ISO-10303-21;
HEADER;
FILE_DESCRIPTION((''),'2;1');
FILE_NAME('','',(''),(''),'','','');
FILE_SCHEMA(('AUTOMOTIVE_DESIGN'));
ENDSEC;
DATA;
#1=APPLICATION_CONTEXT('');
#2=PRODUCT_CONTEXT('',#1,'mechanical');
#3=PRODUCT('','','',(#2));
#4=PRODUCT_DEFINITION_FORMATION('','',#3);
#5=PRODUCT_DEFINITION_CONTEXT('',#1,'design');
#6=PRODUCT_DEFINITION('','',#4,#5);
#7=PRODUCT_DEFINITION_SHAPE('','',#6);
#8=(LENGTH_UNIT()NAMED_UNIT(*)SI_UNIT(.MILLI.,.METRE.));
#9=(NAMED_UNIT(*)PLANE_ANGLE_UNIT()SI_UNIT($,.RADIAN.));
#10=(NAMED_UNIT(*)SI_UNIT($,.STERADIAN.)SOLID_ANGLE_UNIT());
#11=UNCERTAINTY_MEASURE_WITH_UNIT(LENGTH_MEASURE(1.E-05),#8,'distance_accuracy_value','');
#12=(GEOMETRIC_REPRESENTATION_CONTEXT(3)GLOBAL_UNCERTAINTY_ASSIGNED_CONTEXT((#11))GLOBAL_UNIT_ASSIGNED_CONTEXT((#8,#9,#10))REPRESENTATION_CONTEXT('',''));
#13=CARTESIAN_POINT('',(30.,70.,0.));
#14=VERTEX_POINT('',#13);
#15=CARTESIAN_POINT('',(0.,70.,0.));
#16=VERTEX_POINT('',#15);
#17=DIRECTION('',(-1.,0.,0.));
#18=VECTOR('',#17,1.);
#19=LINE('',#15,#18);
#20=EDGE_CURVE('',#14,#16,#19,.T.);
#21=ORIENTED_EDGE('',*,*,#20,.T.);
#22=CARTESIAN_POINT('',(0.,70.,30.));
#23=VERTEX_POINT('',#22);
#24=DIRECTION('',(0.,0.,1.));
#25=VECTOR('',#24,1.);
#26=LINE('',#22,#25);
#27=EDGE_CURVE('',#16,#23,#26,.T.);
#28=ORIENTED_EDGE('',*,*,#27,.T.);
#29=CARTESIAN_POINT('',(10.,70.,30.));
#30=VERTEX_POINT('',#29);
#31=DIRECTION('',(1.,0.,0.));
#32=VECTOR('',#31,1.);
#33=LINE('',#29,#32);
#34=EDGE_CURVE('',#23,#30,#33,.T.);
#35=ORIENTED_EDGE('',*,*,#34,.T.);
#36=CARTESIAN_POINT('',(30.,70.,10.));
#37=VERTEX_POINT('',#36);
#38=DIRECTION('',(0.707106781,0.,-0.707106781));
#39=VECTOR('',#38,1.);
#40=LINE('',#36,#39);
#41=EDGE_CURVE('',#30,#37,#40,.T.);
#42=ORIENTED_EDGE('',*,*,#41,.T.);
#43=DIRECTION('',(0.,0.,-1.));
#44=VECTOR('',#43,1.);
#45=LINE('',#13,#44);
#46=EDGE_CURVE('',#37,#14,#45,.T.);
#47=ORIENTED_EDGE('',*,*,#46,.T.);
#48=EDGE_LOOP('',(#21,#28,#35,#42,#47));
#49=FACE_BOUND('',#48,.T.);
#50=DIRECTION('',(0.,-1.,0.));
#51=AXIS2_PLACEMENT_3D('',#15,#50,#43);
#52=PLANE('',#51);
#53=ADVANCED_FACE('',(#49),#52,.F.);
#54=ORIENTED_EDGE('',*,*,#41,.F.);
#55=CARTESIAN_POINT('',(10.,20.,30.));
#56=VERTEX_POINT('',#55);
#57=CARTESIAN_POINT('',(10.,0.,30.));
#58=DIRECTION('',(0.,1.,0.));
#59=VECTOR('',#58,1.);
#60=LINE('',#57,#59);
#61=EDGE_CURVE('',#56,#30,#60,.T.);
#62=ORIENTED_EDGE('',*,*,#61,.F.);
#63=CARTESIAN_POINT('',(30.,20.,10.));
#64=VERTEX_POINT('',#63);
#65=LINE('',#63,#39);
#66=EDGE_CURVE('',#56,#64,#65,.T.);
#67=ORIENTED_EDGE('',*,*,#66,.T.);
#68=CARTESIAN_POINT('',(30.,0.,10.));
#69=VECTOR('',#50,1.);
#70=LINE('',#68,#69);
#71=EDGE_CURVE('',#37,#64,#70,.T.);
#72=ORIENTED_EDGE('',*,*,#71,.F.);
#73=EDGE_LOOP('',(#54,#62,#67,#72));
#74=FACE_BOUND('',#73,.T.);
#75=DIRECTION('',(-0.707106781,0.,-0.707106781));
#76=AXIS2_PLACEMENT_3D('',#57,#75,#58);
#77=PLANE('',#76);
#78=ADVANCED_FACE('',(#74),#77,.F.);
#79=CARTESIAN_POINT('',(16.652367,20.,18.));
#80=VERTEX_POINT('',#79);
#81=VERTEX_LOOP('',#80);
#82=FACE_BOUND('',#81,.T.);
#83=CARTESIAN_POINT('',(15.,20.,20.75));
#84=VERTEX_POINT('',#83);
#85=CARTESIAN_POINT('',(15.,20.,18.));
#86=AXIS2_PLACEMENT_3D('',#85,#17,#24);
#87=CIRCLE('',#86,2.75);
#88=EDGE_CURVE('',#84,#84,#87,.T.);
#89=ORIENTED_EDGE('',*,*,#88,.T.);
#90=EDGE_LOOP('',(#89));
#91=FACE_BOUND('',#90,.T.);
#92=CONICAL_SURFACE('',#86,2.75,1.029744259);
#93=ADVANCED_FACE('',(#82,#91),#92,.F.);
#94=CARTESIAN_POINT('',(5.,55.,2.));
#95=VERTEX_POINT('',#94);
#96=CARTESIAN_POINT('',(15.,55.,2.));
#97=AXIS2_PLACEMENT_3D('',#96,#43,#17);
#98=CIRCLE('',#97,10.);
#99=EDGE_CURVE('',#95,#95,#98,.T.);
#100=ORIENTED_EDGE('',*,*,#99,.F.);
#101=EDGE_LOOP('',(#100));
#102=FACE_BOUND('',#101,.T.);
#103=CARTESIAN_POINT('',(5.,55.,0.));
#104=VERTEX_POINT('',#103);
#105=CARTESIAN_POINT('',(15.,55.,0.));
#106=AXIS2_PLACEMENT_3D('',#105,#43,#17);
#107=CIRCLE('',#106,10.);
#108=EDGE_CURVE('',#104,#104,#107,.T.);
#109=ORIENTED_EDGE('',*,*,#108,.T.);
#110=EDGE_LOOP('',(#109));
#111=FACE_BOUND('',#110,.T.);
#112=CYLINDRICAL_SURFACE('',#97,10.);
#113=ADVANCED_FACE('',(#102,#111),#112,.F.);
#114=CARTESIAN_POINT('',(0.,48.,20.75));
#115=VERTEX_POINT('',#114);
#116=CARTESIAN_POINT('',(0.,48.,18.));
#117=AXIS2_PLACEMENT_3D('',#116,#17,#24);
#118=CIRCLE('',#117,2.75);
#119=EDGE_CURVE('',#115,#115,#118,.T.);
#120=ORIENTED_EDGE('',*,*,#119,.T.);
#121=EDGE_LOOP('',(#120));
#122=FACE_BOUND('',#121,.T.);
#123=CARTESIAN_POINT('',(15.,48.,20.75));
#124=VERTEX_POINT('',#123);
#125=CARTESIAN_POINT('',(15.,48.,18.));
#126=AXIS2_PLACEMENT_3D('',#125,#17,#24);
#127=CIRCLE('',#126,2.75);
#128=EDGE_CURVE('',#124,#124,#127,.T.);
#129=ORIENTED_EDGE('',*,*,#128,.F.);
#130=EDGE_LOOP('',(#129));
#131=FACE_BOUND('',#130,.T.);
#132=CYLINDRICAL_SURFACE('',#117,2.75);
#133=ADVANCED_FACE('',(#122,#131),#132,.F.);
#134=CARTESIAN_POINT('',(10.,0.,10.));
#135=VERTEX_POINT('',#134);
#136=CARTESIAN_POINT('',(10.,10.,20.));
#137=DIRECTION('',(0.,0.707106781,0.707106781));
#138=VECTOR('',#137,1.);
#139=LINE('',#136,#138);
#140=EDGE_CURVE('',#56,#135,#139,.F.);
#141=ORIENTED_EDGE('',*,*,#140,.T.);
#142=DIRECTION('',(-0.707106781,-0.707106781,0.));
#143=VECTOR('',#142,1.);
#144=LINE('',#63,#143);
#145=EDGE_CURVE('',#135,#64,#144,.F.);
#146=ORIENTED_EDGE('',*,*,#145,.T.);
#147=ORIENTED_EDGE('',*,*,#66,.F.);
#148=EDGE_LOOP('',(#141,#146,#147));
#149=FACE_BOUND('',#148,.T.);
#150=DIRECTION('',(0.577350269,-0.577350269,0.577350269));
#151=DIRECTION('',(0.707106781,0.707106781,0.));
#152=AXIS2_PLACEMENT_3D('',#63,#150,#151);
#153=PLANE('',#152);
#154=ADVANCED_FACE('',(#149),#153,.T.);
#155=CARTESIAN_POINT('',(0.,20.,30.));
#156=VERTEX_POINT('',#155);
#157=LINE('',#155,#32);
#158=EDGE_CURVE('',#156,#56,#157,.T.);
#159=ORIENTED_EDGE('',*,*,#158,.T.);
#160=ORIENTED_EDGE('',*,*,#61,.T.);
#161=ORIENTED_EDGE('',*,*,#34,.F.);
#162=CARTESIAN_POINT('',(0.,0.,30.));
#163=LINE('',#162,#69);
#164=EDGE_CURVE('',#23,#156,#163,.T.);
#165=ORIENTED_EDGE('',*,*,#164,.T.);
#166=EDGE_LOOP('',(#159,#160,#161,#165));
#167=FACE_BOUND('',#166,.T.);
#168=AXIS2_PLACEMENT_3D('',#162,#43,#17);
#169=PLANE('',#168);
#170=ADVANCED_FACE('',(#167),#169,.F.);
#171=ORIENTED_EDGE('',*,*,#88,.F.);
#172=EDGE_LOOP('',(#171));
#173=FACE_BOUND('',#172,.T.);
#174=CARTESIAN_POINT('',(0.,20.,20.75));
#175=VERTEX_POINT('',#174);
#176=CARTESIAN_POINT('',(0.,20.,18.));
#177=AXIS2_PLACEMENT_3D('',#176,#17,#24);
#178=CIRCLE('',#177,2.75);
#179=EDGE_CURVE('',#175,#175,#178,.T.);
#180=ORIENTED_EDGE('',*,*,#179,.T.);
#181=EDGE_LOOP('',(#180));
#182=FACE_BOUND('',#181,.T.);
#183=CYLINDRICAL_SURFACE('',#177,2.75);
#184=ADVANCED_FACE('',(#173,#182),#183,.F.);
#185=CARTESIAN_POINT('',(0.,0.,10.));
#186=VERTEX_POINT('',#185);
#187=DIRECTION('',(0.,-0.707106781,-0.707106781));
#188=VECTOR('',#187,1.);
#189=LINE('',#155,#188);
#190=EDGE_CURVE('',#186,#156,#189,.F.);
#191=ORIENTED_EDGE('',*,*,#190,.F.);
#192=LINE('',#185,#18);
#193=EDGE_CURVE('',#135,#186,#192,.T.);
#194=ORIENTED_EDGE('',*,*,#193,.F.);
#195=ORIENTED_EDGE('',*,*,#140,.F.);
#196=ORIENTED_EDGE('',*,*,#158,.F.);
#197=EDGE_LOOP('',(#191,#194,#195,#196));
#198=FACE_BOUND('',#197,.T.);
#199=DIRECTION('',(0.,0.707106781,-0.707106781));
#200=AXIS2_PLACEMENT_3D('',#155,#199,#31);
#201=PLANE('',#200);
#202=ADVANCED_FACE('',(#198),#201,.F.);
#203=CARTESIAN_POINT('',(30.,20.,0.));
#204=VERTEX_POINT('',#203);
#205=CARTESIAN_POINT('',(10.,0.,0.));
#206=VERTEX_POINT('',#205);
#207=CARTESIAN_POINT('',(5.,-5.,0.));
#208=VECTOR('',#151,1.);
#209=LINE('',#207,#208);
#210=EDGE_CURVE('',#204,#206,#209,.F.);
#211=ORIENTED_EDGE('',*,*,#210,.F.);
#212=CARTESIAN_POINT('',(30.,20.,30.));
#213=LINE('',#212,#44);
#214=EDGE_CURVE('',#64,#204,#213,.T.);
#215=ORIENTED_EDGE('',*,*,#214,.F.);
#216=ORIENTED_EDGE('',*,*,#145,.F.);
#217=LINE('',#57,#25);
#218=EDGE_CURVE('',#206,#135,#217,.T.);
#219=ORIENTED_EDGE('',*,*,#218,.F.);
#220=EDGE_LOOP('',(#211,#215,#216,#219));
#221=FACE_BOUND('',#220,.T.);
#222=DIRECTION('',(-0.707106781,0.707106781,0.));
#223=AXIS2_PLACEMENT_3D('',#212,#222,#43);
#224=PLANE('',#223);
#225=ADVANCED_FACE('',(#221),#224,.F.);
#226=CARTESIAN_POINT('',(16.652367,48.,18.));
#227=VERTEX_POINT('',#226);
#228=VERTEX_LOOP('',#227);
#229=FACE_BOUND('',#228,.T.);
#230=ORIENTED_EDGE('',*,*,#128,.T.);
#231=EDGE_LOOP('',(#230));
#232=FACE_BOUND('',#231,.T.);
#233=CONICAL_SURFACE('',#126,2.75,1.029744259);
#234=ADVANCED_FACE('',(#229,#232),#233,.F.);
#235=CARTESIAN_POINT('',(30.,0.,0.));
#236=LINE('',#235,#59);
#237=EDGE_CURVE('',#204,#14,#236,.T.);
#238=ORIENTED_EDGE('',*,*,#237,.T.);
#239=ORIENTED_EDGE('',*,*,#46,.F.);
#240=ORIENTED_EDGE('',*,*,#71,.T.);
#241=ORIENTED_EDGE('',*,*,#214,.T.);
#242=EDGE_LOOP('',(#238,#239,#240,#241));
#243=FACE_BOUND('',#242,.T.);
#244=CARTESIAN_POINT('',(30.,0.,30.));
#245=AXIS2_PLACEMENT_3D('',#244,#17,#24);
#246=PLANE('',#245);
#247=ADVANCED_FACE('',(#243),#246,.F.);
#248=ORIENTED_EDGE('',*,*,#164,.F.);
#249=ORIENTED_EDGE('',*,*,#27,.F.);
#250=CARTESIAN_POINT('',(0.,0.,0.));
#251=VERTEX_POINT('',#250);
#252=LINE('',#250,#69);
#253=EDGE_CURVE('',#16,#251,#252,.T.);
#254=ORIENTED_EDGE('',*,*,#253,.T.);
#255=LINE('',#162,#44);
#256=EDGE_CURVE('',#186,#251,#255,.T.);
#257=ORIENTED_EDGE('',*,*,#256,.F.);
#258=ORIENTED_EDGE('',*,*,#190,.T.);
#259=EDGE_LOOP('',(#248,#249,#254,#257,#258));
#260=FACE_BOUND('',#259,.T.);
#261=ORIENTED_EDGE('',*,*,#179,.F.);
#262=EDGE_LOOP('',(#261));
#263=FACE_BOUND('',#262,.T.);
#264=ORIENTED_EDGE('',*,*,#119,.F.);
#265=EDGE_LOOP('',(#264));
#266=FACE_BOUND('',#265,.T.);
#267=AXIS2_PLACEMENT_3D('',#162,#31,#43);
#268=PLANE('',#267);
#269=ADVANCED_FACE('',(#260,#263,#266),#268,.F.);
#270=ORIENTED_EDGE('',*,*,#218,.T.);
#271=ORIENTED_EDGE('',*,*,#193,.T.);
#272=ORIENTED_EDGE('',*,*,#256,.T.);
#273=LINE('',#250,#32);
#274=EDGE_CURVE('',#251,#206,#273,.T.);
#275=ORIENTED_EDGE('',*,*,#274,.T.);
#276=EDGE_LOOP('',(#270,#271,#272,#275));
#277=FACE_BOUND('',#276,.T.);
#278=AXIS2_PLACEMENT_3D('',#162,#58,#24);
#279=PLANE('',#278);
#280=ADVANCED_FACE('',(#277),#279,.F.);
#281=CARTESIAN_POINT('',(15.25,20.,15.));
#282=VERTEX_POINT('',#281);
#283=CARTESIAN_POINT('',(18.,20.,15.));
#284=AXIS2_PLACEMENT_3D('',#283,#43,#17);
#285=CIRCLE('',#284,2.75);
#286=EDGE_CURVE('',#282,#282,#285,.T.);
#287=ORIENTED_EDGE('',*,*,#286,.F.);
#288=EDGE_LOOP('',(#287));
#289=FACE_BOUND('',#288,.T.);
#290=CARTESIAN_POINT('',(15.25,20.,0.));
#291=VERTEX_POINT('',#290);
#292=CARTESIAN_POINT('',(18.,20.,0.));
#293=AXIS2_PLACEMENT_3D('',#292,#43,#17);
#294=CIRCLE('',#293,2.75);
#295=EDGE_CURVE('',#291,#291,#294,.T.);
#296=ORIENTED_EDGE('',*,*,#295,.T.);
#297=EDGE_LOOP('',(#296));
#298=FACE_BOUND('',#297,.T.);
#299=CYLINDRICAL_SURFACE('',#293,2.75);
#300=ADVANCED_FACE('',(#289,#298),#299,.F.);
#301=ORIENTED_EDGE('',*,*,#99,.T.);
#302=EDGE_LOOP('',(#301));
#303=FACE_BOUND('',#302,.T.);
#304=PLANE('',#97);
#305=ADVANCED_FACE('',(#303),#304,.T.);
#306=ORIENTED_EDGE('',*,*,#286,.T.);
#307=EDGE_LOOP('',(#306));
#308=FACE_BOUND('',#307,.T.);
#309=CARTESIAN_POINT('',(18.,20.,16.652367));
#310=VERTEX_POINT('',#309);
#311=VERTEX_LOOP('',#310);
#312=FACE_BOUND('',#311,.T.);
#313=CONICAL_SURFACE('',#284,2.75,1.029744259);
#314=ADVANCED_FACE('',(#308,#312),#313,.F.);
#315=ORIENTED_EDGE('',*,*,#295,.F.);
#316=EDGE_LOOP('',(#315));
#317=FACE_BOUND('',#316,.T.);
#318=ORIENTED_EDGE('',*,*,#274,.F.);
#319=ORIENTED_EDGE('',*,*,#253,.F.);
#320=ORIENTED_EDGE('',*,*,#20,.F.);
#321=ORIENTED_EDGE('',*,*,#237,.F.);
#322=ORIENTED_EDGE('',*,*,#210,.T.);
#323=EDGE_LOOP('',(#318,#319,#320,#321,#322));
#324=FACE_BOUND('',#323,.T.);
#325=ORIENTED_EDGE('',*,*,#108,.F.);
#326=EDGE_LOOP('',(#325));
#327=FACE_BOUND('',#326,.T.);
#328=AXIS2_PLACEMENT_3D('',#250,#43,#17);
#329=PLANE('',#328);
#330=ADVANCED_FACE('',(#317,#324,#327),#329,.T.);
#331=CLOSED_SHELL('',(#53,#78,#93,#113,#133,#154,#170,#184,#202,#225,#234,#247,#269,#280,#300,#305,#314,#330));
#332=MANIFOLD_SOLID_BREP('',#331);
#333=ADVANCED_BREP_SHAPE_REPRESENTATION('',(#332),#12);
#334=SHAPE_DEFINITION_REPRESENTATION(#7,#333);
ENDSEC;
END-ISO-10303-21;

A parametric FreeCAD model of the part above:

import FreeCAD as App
import Part
import Sketcher
Q = App.Units.Quantity


def edges_at(feature, points):
    """Names of the edges that pass closest to the given points."""
    edges = feature.Shape.Edges
    near = lambda p: min(range(len(edges)), key=lambda i: edges[i].distToShape(Part.Vertex(*p))[0])
    return sorted({f"Edge{near(p) + 1}" for p in points})


def add_polygon(sketch, points):
    """Adds a closed chain of lines whose ends are joined by coincident constraints."""
    first, n = sketch.GeometryCount, len(points)
    for a, b in zip(points, points[1:] + points[:1]):
        sketch.addGeometry(Part.LineSegment(App.Vector(*a, 0), App.Vector(*b, 0)), False)
    for i in range(n):
        sketch.addConstraint(Sketcher.Constraint("Coincident", first + i, 2, first + (i + 1) % n, 1))

doc = App.newDocument("Part")
body = doc.addObject("PartDesign::Body", "Body")

# Sketch on XY plane
sketch1 = body.newObject("Sketcher::SketchObject", "Sketch")
sketch1.AttachmentSupport = (doc.getObject("XY_Plane"), [""])
sketch1.MapMode = "FlatFace"
add_polygon(sketch1, [(0, 40), (0, 0), (30, 0), (30, 40)])  # lines 0-3
sketch1.addConstraint(Sketcher.Constraint("Vertical", 0))
sketch1.addConstraint(Sketcher.Constraint("Horizontal", 1))
sketch1.addConstraint(Sketcher.Constraint("Vertical", 2))
sketch1.addConstraint(Sketcher.Constraint("Horizontal", 3))
sketch1.addConstraint(Sketcher.Constraint("Coincident", 0, 2, -1, 1))
sketch1.addConstraint(Sketcher.Constraint("DistanceX", 1, 1, 1, 2, Q("30 mm")))
sketch1.addConstraint(Sketcher.Constraint("DistanceY", 0, 2, 0, 1, Q("40 mm")))
pad1 = body.newObject("PartDesign::Pad", "Pad")
pad1.Profile = sketch1
pad1.Length = 30
doc.recompute()

chamfer = body.newObject("PartDesign::Chamfer", "Chamfer")
chamfer.Base = (pad1, edges_at(pad1, [(30, 20, 30), (30, 0, 15), (15, 0, 30)]))
chamfer.Size = 20

# Sketch on XZ plane
sketch2 = body.newObject("Sketcher::SketchObject", "Sketch001")
sketch2.AttachmentSupport = (doc.getObject("XZ_Plane"), [""])
sketch2.MapMode = "FlatFace"
sketch2.AttachmentOffset = App.Placement(App.Vector(0, 0, -40), App.Rotation())
add_polygon(sketch2, [(30, 0), (0, 0), (0, 30), (10, 30), (30, 10)])  # lines 0-4
sketch2.addConstraint(Sketcher.Constraint("Horizontal", 0))
sketch2.addConstraint(Sketcher.Constraint("Vertical", 1))
sketch2.addConstraint(Sketcher.Constraint("Horizontal", 2))
sketch2.addConstraint(Sketcher.Constraint("Vertical", 4))
sketch2.addConstraint(Sketcher.Constraint("Coincident", 0, 2, -1, 1))
sketch2.addConstraint(Sketcher.Constraint("Equal", 0, 1))
sketch2.addConstraint(Sketcher.Constraint("Equal", 2, 4))
sketch2.addConstraint(Sketcher.Constraint("DistanceX", 0, 2, 0, 1, Q("30 mm")))
sketch2.addConstraint(Sketcher.Constraint("DistanceX", 2, 1, 2, 2, Q("10 mm")))
pad2 = body.newObject("PartDesign::Pad", "Pad001")
pad2.Profile = sketch2
pad2.Length = 30
pad2.Reversed = True

# Sketch on YZ plane
sketch3 = body.newObject("Sketcher::SketchObject", "Sketch002")
sketch3.AttachmentSupport = (doc.getObject("YZ_Plane"), [""])
sketch3.MapMode = "FlatFace"
sketch3.addGeometry(Part.Circle(App.Vector(20, 18, 0), App.Vector(0, 0, 1), 2.8), False)
sketch3.addGeometry(Part.Circle(App.Vector(48, 18, 0), App.Vector(0, 0, 1), 2.8), False)
sketch3.addConstraint(Sketcher.Constraint("Equal", 0, 1))
sketch3.addConstraint(Sketcher.Constraint("Horizontal", 0, 3, 1, 3))
sketch3.addConstraint(Sketcher.Constraint("Diameter", 0, Q("5.5 mm")))
sketch3.addConstraint(Sketcher.Constraint("DistanceX", -1, 1, 0, 3, Q("20 mm")))
sketch3.addConstraint(Sketcher.Constraint("DistanceY", -1, 1, 0, 3, Q("18 mm")))
sketch3.addConstraint(Sketcher.Constraint("DistanceX", -1, 1, 1, 3, Q("48 mm")))
doc.recompute()
hole = body.newObject("PartDesign::Hole", "Hole")
hole.Profile = sketch3
hole.ThreadType = "None"
hole.Diameter = 5.5
hole.DepthType = "Dimension"
hole.Depth = 15
hole.DrillPoint = "Angled"
hole.DrillPointAngle = 118
hole.Reversed = True

# Sketch on XY plane
sketch4 = body.newObject("Sketcher::SketchObject", "Sketch003")
sketch4.AttachmentSupport = (doc.getObject("XY_Plane"), [""])
sketch4.MapMode = "FlatFace"
sketch4.addGeometry(Part.Circle(App.Vector(18, 20, 0), App.Vector(0, 0, 1), 2.8), False)
sketch4.addConstraint(Sketcher.Constraint("Diameter", 0, Q("5.5 mm")))
sketch4.addConstraint(Sketcher.Constraint("DistanceX", -1, 1, 0, 3, Q("18 mm")))
sketch4.addConstraint(Sketcher.Constraint("DistanceY", -1, 1, 0, 3, Q("20 mm")))
doc.recompute()
hole2 = body.newObject("PartDesign::Hole", "Hole001")
hole2.Profile = sketch4
hole2.ThreadType = "None"
hole2.Diameter = 5.5
hole2.DepthType = "Dimension"
hole2.Depth = 15
hole2.DrillPoint = "Angled"
hole2.DrillPointAngle = 118
hole2.Reversed = True

# Sketch on XY plane
sketch5 = body.newObject("Sketcher::SketchObject", "Sketch004")
sketch5.AttachmentSupport = (doc.getObject("XY_Plane"), [""])
sketch5.MapMode = "FlatFace"
sketch5.addGeometry(Part.Circle(App.Vector(15, 55, 0), App.Vector(0, 0, 1), 10), False)
sketch5.addConstraint(Sketcher.Constraint("Diameter", 0, Q("20 mm")))
sketch5.addConstraint(Sketcher.Constraint("DistanceX", -1, 1, 0, 3, Q("15 mm")))
sketch5.addConstraint(Sketcher.Constraint("DistanceY", -1, 1, 0, 3, Q("55 mm")))
pocket1 = body.newObject("PartDesign::Pocket", "Pocket")
pocket1.Profile = sketch5
pocket1.Length = 2
pocket1.Reversed = True

doc.recompute()
